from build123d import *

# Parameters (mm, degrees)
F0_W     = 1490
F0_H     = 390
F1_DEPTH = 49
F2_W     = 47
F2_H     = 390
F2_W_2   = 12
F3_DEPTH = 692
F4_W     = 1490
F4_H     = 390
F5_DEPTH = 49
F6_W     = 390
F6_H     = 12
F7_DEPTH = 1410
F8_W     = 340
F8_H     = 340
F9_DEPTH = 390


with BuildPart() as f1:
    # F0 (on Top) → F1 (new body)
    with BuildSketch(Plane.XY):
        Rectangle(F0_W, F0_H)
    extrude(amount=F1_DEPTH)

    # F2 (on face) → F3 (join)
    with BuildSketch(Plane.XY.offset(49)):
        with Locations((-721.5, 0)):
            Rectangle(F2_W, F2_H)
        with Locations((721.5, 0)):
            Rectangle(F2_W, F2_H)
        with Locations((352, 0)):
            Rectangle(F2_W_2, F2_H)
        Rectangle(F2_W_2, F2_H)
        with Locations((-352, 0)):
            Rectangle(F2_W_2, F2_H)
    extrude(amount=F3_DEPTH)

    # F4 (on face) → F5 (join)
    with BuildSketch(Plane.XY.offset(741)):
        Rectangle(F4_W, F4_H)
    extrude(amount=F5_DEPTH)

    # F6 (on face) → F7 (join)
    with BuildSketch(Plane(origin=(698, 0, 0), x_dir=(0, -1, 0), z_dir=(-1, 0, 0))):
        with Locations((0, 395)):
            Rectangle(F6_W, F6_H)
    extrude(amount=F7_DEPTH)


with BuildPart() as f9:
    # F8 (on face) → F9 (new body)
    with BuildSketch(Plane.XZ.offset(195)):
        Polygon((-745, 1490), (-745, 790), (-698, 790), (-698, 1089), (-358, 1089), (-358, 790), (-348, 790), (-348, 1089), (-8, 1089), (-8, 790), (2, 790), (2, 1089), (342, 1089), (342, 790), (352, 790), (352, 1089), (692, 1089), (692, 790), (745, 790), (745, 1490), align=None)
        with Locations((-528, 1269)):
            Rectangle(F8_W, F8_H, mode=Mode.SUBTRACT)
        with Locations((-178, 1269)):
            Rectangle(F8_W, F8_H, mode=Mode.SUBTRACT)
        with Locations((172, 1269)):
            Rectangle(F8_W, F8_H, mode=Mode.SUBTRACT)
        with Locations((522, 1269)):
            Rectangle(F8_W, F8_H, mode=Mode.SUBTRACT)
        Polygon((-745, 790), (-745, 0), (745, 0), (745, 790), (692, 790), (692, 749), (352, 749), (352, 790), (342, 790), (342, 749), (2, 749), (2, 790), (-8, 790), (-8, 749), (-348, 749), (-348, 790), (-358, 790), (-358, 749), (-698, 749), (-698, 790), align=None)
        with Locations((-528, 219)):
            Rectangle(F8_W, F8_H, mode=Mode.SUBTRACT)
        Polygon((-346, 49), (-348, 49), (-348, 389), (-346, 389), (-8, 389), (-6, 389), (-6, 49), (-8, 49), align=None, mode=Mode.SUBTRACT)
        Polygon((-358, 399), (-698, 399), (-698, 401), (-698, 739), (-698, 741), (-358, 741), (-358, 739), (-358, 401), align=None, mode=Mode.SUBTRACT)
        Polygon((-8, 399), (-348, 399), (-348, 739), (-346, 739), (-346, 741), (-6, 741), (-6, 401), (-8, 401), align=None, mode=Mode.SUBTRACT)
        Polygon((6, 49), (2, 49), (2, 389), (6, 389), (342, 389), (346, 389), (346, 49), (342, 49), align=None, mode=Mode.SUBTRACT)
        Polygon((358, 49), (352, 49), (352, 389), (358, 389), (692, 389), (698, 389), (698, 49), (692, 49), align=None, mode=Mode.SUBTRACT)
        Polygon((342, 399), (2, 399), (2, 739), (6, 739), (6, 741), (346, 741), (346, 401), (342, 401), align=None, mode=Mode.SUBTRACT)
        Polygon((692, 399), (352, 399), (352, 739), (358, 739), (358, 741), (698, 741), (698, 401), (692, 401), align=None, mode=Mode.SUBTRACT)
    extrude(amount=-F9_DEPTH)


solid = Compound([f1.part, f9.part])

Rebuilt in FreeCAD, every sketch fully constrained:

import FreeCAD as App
import Part
import Sketcher
from FreeCAD import Vector
Q = App.Units.Quantity

doc = App.newDocument("Part")
body = doc.addObject("PartDesign::Body", "Body")

# Sketch on XY plane
sketch1 = doc.addObject("Sketcher::SketchObject", "Sketch")
body.addObject(sketch1)
sketch1.AttachmentSupport = (doc.XY_Plane, [""])
sketch1.MapMode = "FlatFace"
sketch1.addGeometry(Part.LineSegment(Vector(-745, 195, 0), Vector(-745, -195, 0)), False)
sketch1.addGeometry(Part.LineSegment(Vector(-745, -195, 0), Vector(745, -195, 0)), False)
sketch1.addGeometry(Part.LineSegment(Vector(745, -195, 0), Vector(745, 195, 0)), False)
sketch1.addGeometry(Part.LineSegment(Vector(745, 195, 0), Vector(-745, 195, 0)), False)
sketch1.addConstraint(Sketcher.Constraint("Coincident", 0, 2, 1, 1))
sketch1.addConstraint(Sketcher.Constraint("Coincident", 1, 2, 2, 1))
sketch1.addConstraint(Sketcher.Constraint("Coincident", 2, 2, 3, 1))
sketch1.addConstraint(Sketcher.Constraint("Coincident", 3, 2, 0, 1))
sketch1.addConstraint(Sketcher.Constraint("Vertical", 0))
sketch1.addConstraint(Sketcher.Constraint("Horizontal", 1))
sketch1.addConstraint(Sketcher.Constraint("Vertical", 2))
sketch1.addConstraint(Sketcher.Constraint("Horizontal", 3))
sketch1.addConstraint(Sketcher.Constraint("Symmetric", 0, 2, 2, 2, -1, 1))
sketch1.addConstraint(Sketcher.Constraint("DistanceX", 1, 1, 1, 2, Q("1490 mm")))
sketch1.addConstraint(Sketcher.Constraint("DistanceY", 0, 2, 0, 1, Q("390 mm")))
pad1 = doc.addObject("PartDesign::Pad", "Pad")
body.addObject(pad1)
pad1.Profile = sketch1
pad1.Length = 49

# Sketch on XY plane
sketch2 = doc.addObject("Sketcher::SketchObject", "Sketch001")
body.addObject(sketch2)
sketch2.AttachmentSupport = (doc.XY_Plane, [""])
sketch2.MapMode = "FlatFace"
sketch2.AttachmentOffset = App.Placement(Vector(0, 0, 49), App.Rotation())
sketch2.addGeometry(Part.LineSegment(Vector(-745, 195, 0), Vector(-745, -195, 0)), False)
sketch2.addGeometry(Part.LineSegment(Vector(-745, -195, 0), Vector(-698, -195, 0)), False)
sketch2.addGeometry(Part.LineSegment(Vector(-698, -195, 0), Vector(-698, 195, 0)), False)
sketch2.addGeometry(Part.LineSegment(Vector(-698, 195, 0), Vector(-745, 195, 0)), False)
sketch2.addGeometry(Part.LineSegment(Vector(698, 195, 0), Vector(698, -195, 0)), False)
sketch2.addGeometry(Part.LineSegment(Vector(698, -195, 0), Vector(745, -195, 0)), False)
sketch2.addGeometry(Part.LineSegment(Vector(745, -195, 0), Vector(745, 195, 0)), False)
sketch2.addGeometry(Part.LineSegment(Vector(745, 195, 0), Vector(698, 195, 0)), False)
sketch2.addGeometry(Part.LineSegment(Vector(346, 195, 0), Vector(346, -195, 0)), False)
sketch2.addGeometry(Part.LineSegment(Vector(346, -195, 0), Vector(358, -195, 0)), False)
sketch2.addGeometry(Part.LineSegment(Vector(358, -195, 0), Vector(358, 195, 0)), False)
sketch2.addGeometry(Part.LineSegment(Vector(358, 195, 0), Vector(346, 195, 0)), False)
sketch2.addGeometry(Part.LineSegment(Vector(-6, 195, 0), Vector(-6, -195, 0)), False)
sketch2.addGeometry(Part.LineSegment(Vector(-6, -195, 0), Vector(6, -195, 0)), False)
sketch2.addGeometry(Part.LineSegment(Vector(6, -195, 0), Vector(6, 195, 0)), False)
sketch2.addGeometry(Part.LineSegment(Vector(6, 195, 0), Vector(-6, 195, 0)), False)
sketch2.addGeometry(Part.LineSegment(Vector(-358, 195, 0), Vector(-358, -195, 0)), False)
sketch2.addGeometry(Part.LineSegment(Vector(-358, -195, 0), Vector(-346, -195, 0)), False)
sketch2.addGeometry(Part.LineSegment(Vector(-346, -195, 0), Vector(-346, 195, 0)), False)
sketch2.addGeometry(Part.LineSegment(Vector(-346, 195, 0), Vector(-358, 195, 0)), False)
sketch2.addConstraint(Sketcher.Constraint("Coincident", 0, 2, 1, 1))
sketch2.addConstraint(Sketcher.Constraint("Coincident", 1, 2, 2, 1))
sketch2.addConstraint(Sketcher.Constraint("Coincident", 2, 2, 3, 1))
sketch2.addConstraint(Sketcher.Constraint("Coincident", 3, 2, 0, 1))
sketch2.addConstraint(Sketcher.Constraint("Coincident", 4, 2, 5, 1))
sketch2.addConstraint(Sketcher.Constraint("Coincident", 5, 2, 6, 1))
sketch2.addConstraint(Sketcher.Constraint("Coincident", 6, 2, 7, 1))
sketch2.addConstraint(Sketcher.Constraint("Coincident", 7, 2, 4, 1))
sketch2.addConstraint(Sketcher.Constraint("Coincident", 8, 2, 9, 1))
sketch2.addConstraint(Sketcher.Constraint("Coincident", 9, 2, 10, 1))
sketch2.addConstraint(Sketcher.Constraint("Coincident", 10, 2, 11, 1))
sketch2.addConstraint(Sketcher.Constraint("Coincident", 11, 2, 8, 1))
sketch2.addConstraint(Sketcher.Constraint("Coincident", 12, 2, 13, 1))
sketch2.addConstraint(Sketcher.Constraint("Coincident", 13, 2, 14, 1))
sketch2.addConstraint(Sketcher.Constraint("Coincident", 14, 2, 15, 1))
sketch2.addConstraint(Sketcher.Constraint("Coincident", 15, 2, 12, 1))
sketch2.addConstraint(Sketcher.Constraint("Coincident", 16, 2, 17, 1))
sketch2.addConstraint(Sketcher.Constraint("Coincident", 17, 2, 18, 1))
sketch2.addConstraint(Sketcher.Constraint("Coincident", 18, 2, 19, 1))
sketch2.addConstraint(Sketcher.Constraint("Coincident", 19, 2, 16, 1))
sketch2.addConstraint(Sketcher.Constraint("Vertical", 0))
sketch2.addConstraint(Sketcher.Constraint("Horizontal", 1))
sketch2.addConstraint(Sketcher.Constraint("Vertical", 2))
sketch2.addConstraint(Sketcher.Constraint("Horizontal", 3))
sketch2.addConstraint(Sketcher.Constraint("Vertical", 4))
sketch2.addConstraint(Sketcher.Constraint("Horizontal", 5))
sketch2.addConstraint(Sketcher.Constraint("Vertical", 6))
sketch2.addConstraint(Sketcher.Constraint("Horizontal", 7))
sketch2.addConstraint(Sketcher.Constraint("Vertical", 8))
sketch2.addConstraint(Sketcher.Constraint("Horizontal", 9))
sketch2.addConstraint(Sketcher.Constraint("Vertical", 10))
sketch2.addConstraint(Sketcher.Constraint("Horizontal", 11))
sketch2.addConstraint(Sketcher.Constraint("Vertical", 12))
sketch2.addConstraint(Sketcher.Constraint("Horizontal", 13))
sketch2.addConstraint(Sketcher.Constraint("Vertical", 14))
sketch2.addConstraint(Sketcher.Constraint("Horizontal", 15))
sketch2.addConstraint(Sketcher.Constraint("Vertical", 16))
sketch2.addConstraint(Sketcher.Constraint("Horizontal", 17))
sketch2.addConstraint(Sketcher.Constraint("Vertical", 18))
sketch2.addConstraint(Sketcher.Constraint("Horizontal", 19))
sketch2.addConstraint(Sketcher.Constraint("Symmetric", 2, 2, 4, 2, -1, 1))
sketch2.addConstraint(Sketcher.Constraint("Symmetric", 0, 2, 6, 2, -1, 1))
sketch2.addConstraint(Sketcher.Constraint("Symmetric", 12, 2, 14, 2, -1, 1))
sketch2.addConstraint(Sketcher.Constraint("Symmetric", 10, 2, 16, 2, -1, 1))
sketch2.addConstraint(Sketcher.Constraint("Symmetric", 8, 2, 18, 2, -1, 1))
sketch2.addConstraint(Sketcher.Constraint("Horizontal", 1, 2, 4, 2))
sketch2.addConstraint(Sketcher.Constraint("Horizontal", 5, 2, 8, 2))
sketch2.addConstraint(Sketcher.Constraint("Horizontal", 7, 2, 10, 2))
sketch2.addConstraint(Sketcher.Constraint("Horizontal", 9, 2, 12, 2))
sketch2.addConstraint(Sketcher.Constraint("Equal", 11, 13))
sketch2.addConstraint(Sketcher.Constraint("DistanceX", 1, 1, 1, 2, Q("47 mm")))
sketch2.addConstraint(Sketcher.Constraint("DistanceX", 9, 1, 9, 2, Q("12 mm")))
sketch2.addConstraint(Sketcher.Constraint("DistanceY", 0, 2, 0, 1, Q("390 mm")))
sketch2.addConstraint(Sketcher.Constraint("DistanceX", 0, 2, -1, 1, Q("745 mm")))
sketch2.addConstraint(Sketcher.Constraint("DistanceX", -1, 1, 8, 2, Q("346 mm")))
pad2 = doc.addObject("PartDesign::Pad", "Pad001")
body.addObject(pad2)
pad2.Profile = sketch2
pad2.Length = 692

# Sketch on XY plane
sketch3 = doc.addObject("Sketcher::SketchObject", "Sketch002")
body.addObject(sketch3)
sketch3.AttachmentSupport = (doc.XY_Plane, [""])
sketch3.MapMode = "FlatFace"
sketch3.AttachmentOffset = App.Placement(Vector(0, 0, 741), App.Rotation())
sketch3.addGeometry(Part.LineSegment(Vector(-745, 195, 0), Vector(-745, -195, 0)), False)
sketch3.addGeometry(Part.LineSegment(Vector(-745, -195, 0), Vector(745, -195, 0)), False)
sketch3.addGeometry(Part.LineSegment(Vector(745, -195, 0), Vector(745, 195, 0)), False)
sketch3.addGeometry(Part.LineSegment(Vector(745, 195, 0), Vector(-745, 195, 0)), False)
sketch3.addConstraint(Sketcher.Constraint("Coincident", 0, 2, 1, 1))
sketch3.addConstraint(Sketcher.Constraint("Coincident", 1, 2, 2, 1))
sketch3.addConstraint(Sketcher.Constraint("Coincident", 2, 2, 3, 1))
sketch3.addConstraint(Sketcher.Constraint("Coincident", 3, 2, 0, 1))
sketch3.addConstraint(Sketcher.Constraint("Vertical", 0))
sketch3.addConstraint(Sketcher.Constraint("Horizontal", 1))
sketch3.addConstraint(Sketcher.Constraint("Vertical", 2))
sketch3.addConstraint(Sketcher.Constraint("Horizontal", 3))
sketch3.addConstraint(Sketcher.Constraint("Symmetric", 0, 2, 2, 2, -1, 1))
sketch3.addConstraint(Sketcher.Constraint("DistanceX", 1, 1, 1, 2, Q("1490 mm")))
sketch3.addConstraint(Sketcher.Constraint("DistanceY", 0, 2, 0, 1, Q("390 mm")))
pad3 = doc.addObject("PartDesign::Pad", "Pad002")
body.addObject(pad3)
pad3.Profile = sketch3
pad3.Length = 49

# Sketch on YZ plane
sketch4 = doc.addObject("Sketcher::SketchObject", "Sketch003")
body.addObject(sketch4)
sketch4.AttachmentSupport = (doc.YZ_Plane, [""])
sketch4.MapMode = "FlatFace"
sketch4.AttachmentOffset = App.Placement(Vector(0, 0, 698), App.Rotation())
sketch4.addGeometry(Part.LineSegment(Vector(195, 401, 0), Vector(195, 389, 0)), False)
sketch4.addGeometry(Part.LineSegment(Vector(195, 389, 0), Vector(-195, 389, 0)), False)
sketch4.addGeometry(Part.LineSegment(Vector(-195, 389, 0), Vector(-195, 401, 0)), False)
sketch4.addGeometry(Part.LineSegment(Vector(-195, 401, 0), Vector(195, 401, 0)), False)
sketch4.addConstraint(Sketcher.Constraint("Coincident", 0, 2, 1, 1))
sketch4.addConstraint(Sketcher.Constraint("Coincident", 1, 2, 2, 1))
sketch4.addConstraint(Sketcher.Constraint("Coincident", 2, 2, 3, 1))
sketch4.addConstraint(Sketcher.Constraint("Coincident", 3, 2, 0, 1))
sketch4.addConstraint(Sketcher.Constraint("Vertical", 0))
sketch4.addConstraint(Sketcher.Constraint("Horizontal", 1))
sketch4.addConstraint(Sketcher.Constraint("Vertical", 2))
sketch4.addConstraint(Sketcher.Constraint("Horizontal", 3))
sketch4.addConstraint(Sketcher.Constraint("DistanceX", 1, 2, 1, 1, Q("390 mm")))
sketch4.addConstraint(Sketcher.Constraint("DistanceY", 0, 2, 0, 1, Q("12 mm")))
sketch4.addConstraint(Sketcher.Constraint("DistanceX", -1, 1, 0, 2, Q("195 mm")))
sketch4.addConstraint(Sketcher.Constraint("DistanceY", -1, 1, 0, 2, Q("389 mm")))
pad4 = doc.addObject("PartDesign::Pad", "Pad003")
body.addObject(pad4)
pad4.Profile = sketch4
pad4.Length = 1410
pad4.Reversed = True
body2 = doc.addObject("PartDesign::Body", "Body001")

# Sketch on XZ plane
sketch5 = doc.addObject("Sketcher::SketchObject", "Sketch004")
body2.addObject(sketch5)
sketch5.AttachmentSupport = (doc.getObject("XZ_Plane001"), [""])
sketch5.MapMode = "FlatFace"
sketch5.AttachmentOffset = App.Placement(Vector(0, 0, 195), App.Rotation())
sketch5.addGeometry(Part.LineSegment(Vector(-745, 1490, 0), Vector(-745, 0, 0)), False)
sketch5.addGeometry(Part.LineSegment(Vector(-745, 0, 0), Vector(745, 0, 0)), False)
sketch5.addGeometry(Part.LineSegment(Vector(745, 0, 0), Vector(745, 1490, 0)), False)
sketch5.addGeometry(Part.LineSegment(Vector(745, 1490, 0), Vector(-745, 1490, 0)), False)
sketch5.addGeometry(Part.LineSegment(Vector(-358, 49, 0), Vector(-698, 49, 0)), False)
sketch5.addGeometry(Part.LineSegment(Vector(-698, 49, 0), Vector(-698, 389, 0)), False)
sketch5.addGeometry(Part.LineSegment(Vector(-698, 389, 0), Vector(-358, 389, 0)), False)
sketch5.addGeometry(Part.LineSegment(Vector(-358, 389, 0), Vector(-358, 49, 0)), False)
sketch5.addGeometry(Part.LineSegment(Vector(-6, 49, 0), Vector(-348, 49, 0)), False)
sketch5.addGeometry(Part.LineSegment(Vector(-348, 49, 0), Vector(-348, 389, 0)), False)
sketch5.addGeometry(Part.LineSegment(Vector(-348, 389, 0), Vector(-6, 389, 0)), False)
sketch5.addGeometry(Part.LineSegment(Vector(-6, 389, 0), Vector(-6, 49, 0)), False)
sketch5.addGeometry(Part.LineSegment(Vector(-358, 741, 0), Vector(-358, 399, 0)), False)
sketch5.addGeometry(Part.LineSegment(Vector(-358, 399, 0), Vector(-698, 399, 0)), False)
sketch5.addGeometry(Part.LineSegment(Vector(-698, 399, 0), Vector(-698, 741, 0)), False)
sketch5.addGeometry(Part.LineSegment(Vector(-698, 741, 0), Vector(-358, 741, 0)), False)
sketch5.addGeometry(Part.LineSegment(Vector(-8, 401, 0), Vector(-8, 399, 0)), False)
sketch5.addGeometry(Part.LineSegment(Vector(-8, 399, 0), Vector(-348, 399, 0)), False)
sketch5.addGeometry(Part.LineSegment(Vector(-348, 399, 0), Vector(-348, 739, 0)), False)
sketch5.addGeometry(Part.LineSegment(Vector(-348, 739, 0), Vector(-346, 739, 0)), False)
sketch5.addGeometry(Part.LineSegment(Vector(-346, 739, 0), Vector(-346, 741, 0)), False)
sketch5.addGeometry(Part.LineSegment(Vector(-346, 741, 0), Vector(-6, 741, 0)), False)
sketch5.addGeometry(Part.LineSegment(Vector(-6, 741, 0), Vector(-6, 401, 0)), False)
sketch5.addGeometry(Part.LineSegment(Vector(-6, 401, 0), Vector(-8, 401, 0)), False)
sketch5.addGeometry(Part.LineSegment(Vector(346, 49, 0), Vector(2, 49, 0)), False)
sketch5.addGeometry(Part.LineSegment(Vector(2, 49, 0), Vector(2, 389, 0)), False)
sketch5.addGeometry(Part.LineSegment(Vector(2, 389, 0), Vector(346, 389, 0)), False)
sketch5.addGeometry(Part.LineSegment(Vector(346, 389, 0), Vector(346, 49, 0)), False)
sketch5.addGeometry(Part.LineSegment(Vector(698, 49, 0), Vector(352, 49, 0)), False)
sketch5.addGeometry(Part.LineSegment(Vector(352, 49, 0), Vector(352, 389, 0)), False)
sketch5.addGeometry(Part.LineSegment(Vector(352, 389, 0), Vector(698, 389, 0)), False)
sketch5.addGeometry(Part.LineSegment(Vector(698, 389, 0), Vector(698, 49, 0)), False)
sketch5.addGeometry(Part.LineSegment(Vector(342, 401, 0), Vector(342, 399, 0)), False)
sketch5.addGeometry(Part.LineSegment(Vector(342, 399, 0), Vector(2, 399, 0)), False)
sketch5.addGeometry(Part.LineSegment(Vector(2, 399, 0), Vector(2, 739, 0)), False)
sketch5.addGeometry(Part.LineSegment(Vector(2, 739, 0), Vector(6, 739, 0)), False)
sketch5.addGeometry(Part.LineSegment(Vector(6, 739, 0), Vector(6, 741, 0)), False)
sketch5.addGeometry(Part.LineSegment(Vector(6, 741, 0), Vector(346, 741, 0)), False)
sketch5.addGeometry(Part.LineSegment(Vector(346, 741, 0), Vector(346, 401, 0)), False)
sketch5.addGeometry(Part.LineSegment(Vector(346, 401, 0), Vector(342, 401, 0)), False)
sketch5.addGeometry(Part.LineSegment(Vector(692, 401, 0), Vector(692, 399, 0)), False)
sketch5.addGeometry(Part.LineSegment(Vector(692, 399, 0), Vector(352, 399, 0)), False)
sketch5.addGeometry(Part.LineSegment(Vector(352, 399, 0), Vector(352, 739, 0)), False)
sketch5.addGeometry(Part.LineSegment(Vector(352, 739, 0), Vector(358, 739, 0)), False)
sketch5.addGeometry(Part.LineSegment(Vector(358, 739, 0), Vector(358, 741, 0)), False)
sketch5.addGeometry(Part.LineSegment(Vector(358, 741, 0), Vector(698, 741, 0)), False)
sketch5.addGeometry(Part.LineSegment(Vector(698, 741, 0), Vector(698, 401, 0)), False)
sketch5.addGeometry(Part.LineSegment(Vector(698, 401, 0), Vector(692, 401, 0)), False)
sketch5.addGeometry(Part.LineSegment(Vector(-698, 1089, 0), Vector(-358, 1089, 0)), False)
sketch5.addGeometry(Part.LineSegment(Vector(-358, 1089, 0), Vector(-358, 749, 0)), False)
sketch5.addGeometry(Part.LineSegment(Vector(-358, 749, 0), Vector(-698, 749, 0)), False)
sketch5.addGeometry(Part.LineSegment(Vector(-698, 749, 0), Vector(-698, 1089, 0)), False)
sketch5.addGeometry(Part.LineSegment(Vector(-348, 1089, 0), Vector(-8, 1089, 0)), False)
sketch5.addGeometry(Part.LineSegment(Vector(-8, 1089, 0), Vector(-8, 749, 0)), False)
sketch5.addGeometry(Part.LineSegment(Vector(-8, 749, 0), Vector(-348, 749, 0)), False)
sketch5.addGeometry(Part.LineSegment(Vector(-348, 749, 0), Vector(-348, 1089, 0)), False)
sketch5.addGeometry(Part.LineSegment(Vector(-358, 1099, 0), Vector(-698, 1099, 0)), False)
sketch5.addGeometry(Part.LineSegment(Vector(-698, 1099, 0), Vector(-698, 1439, 0)), False)
sketch5.addGeometry(Part.LineSegment(Vector(-698, 1439, 0), Vector(-358, 1439, 0)), False)
sketch5.addGeometry(Part.LineSegment(Vector(-358, 1439, 0), Vector(-358, 1099, 0)), False)
sketch5.addGeometry(Part.LineSegment(Vector(-8, 1099, 0), Vector(-348, 1099, 0)), False)
sketch5.addGeometry(Part.LineSegment(Vector(-348, 1099, 0), Vector(-348, 1439, 0)), False)
sketch5.addGeometry(Part.LineSegment(Vector(-348, 1439, 0), Vector(-8, 1439, 0)), False)
sketch5.addGeometry(Part.LineSegment(Vector(-8, 1439, 0), Vector(-8, 1099, 0)), False)
sketch5.addGeometry(Part.LineSegment(Vector(342, 1089, 0), Vector(342, 749, 0)), False)
sketch5.addGeometry(Part.LineSegment(Vector(342, 749, 0), Vector(2, 749, 0)), False)
sketch5.addGeometry(Part.LineSegment(Vector(2, 749, 0), Vector(2, 1089, 0)), False)
sketch5.addGeometry(Part.LineSegment(Vector(2, 1089, 0), Vector(342, 1089, 0)), False)
sketch5.addGeometry(Part.LineSegment(Vector(692, 1089, 0), Vector(692, 749, 0)), False)
sketch5.addGeometry(Part.LineSegment(Vector(692, 749, 0), Vector(352, 749, 0)), False)
sketch5.addGeometry(Part.LineSegment(Vector(352, 749, 0), Vector(352, 1089, 0)), False)
sketch5.addGeometry(Part.LineSegment(Vector(352, 1089, 0), Vector(692, 1089, 0)), False)
sketch5.addGeometry(Part.LineSegment(Vector(342, 1099, 0), Vector(2, 1099, 0)), False)
sketch5.addGeometry(Part.LineSegment(Vector(2, 1099, 0), Vector(2, 1439, 0)), False)
sketch5.addGeometry(Part.LineSegment(Vector(2, 1439, 0), Vector(342, 1439, 0)), False)
sketch5.addGeometry(Part.LineSegment(Vector(342, 1439, 0), Vector(342, 1099, 0)), False)
sketch5.addGeometry(Part.LineSegment(Vector(692, 1099, 0), Vector(352, 1099, 0)), False)
sketch5.addGeometry(Part.LineSegment(Vector(352, 1099, 0), Vector(352, 1439, 0)), False)
sketch5.addGeometry(Part.LineSegment(Vector(352, 1439, 0), Vector(692, 1439, 0)), False)
sketch5.addGeometry(Part.LineSegment(Vector(692, 1439, 0), Vector(692, 1099, 0)), False)
sketch5.addConstraint(Sketcher.Constraint("Coincident", 0, 2, 1, 1))
sketch5.addConstraint(Sketcher.Constraint("Coincident", 1, 2, 2, 1))
sketch5.addConstraint(Sketcher.Constraint("Coincident", 2, 2, 3, 1))
sketch5.addConstraint(Sketcher.Constraint("Coincident", 3, 2, 0, 1))
sketch5.addConstraint(Sketcher.Constraint("Coincident", 4, 2, 5, 1))
sketch5.addConstraint(Sketcher.Constraint("Coincident", 5, 2, 6, 1))
sketch5.addConstraint(Sketcher.Constraint("Coincident", 6, 2, 7, 1))
sketch5.addConstraint(Sketcher.Constraint("Coincident", 7, 2, 4, 1))
sketch5.addConstraint(Sketcher.Constraint("Coincident", 8, 2, 9, 1))
sketch5.addConstraint(Sketcher.Constraint("Coincident", 9, 2, 10, 1))
sketch5.addConstraint(Sketcher.Constraint("Coincident", 10, 2, 11, 1))
sketch5.addConstraint(Sketcher.Constraint("Coincident", 11, 2, 8, 1))
sketch5.addConstraint(Sketcher.Constraint("Coincident", 12, 2, 13, 1))
sketch5.addConstraint(Sketcher.Constraint("Coincident", 13, 2, 14, 1))
sketch5.addConstraint(Sketcher.Constraint("Coincident", 14, 2, 15, 1))
sketch5.addConstraint(Sketcher.Constraint("Coincident", 15, 2, 12, 1))
sketch5.addConstraint(Sketcher.Constraint("Coincident", 16, 2, 17, 1))
sketch5.addConstraint(Sketcher.Constraint("Coincident", 17, 2, 18, 1))
sketch5.addConstraint(Sketcher.Constraint("Coincident", 18, 2, 19, 1))
sketch5.addConstraint(Sketcher.Constraint("Coincident", 19, 2, 20, 1))
sketch5.addConstraint(Sketcher.Constraint("Coincident", 20, 2, 21, 1))
sketch5.addConstraint(Sketcher.Constraint("Coincident", 21, 2, 22, 1))
sketch5.addConstraint(Sketcher.Constraint("Coincident", 22, 2, 23, 1))
sketch5.addConstraint(Sketcher.Constraint("Coincident", 23, 2, 16, 1))
sketch5.addConstraint(Sketcher.Constraint("Coincident", 24, 2, 25, 1))
sketch5.addConstraint(Sketcher.Constraint("Coincident", 25, 2, 26, 1))
sketch5.addConstraint(Sketcher.Constraint("Coincident", 26, 2, 27, 1))
sketch5.addConstraint(Sketcher.Constraint("Coincident", 27, 2, 24, 1))
sketch5.addConstraint(Sketcher.Constraint("Coincident", 28, 2, 29, 1))
sketch5.addConstraint(Sketcher.Constraint("Coincident", 29, 2, 30, 1))
sketch5.addConstraint(Sketcher.Constraint("Coincident", 30, 2, 31, 1))
sketch5.addConstraint(Sketcher.Constraint("Coincident", 31, 2, 28, 1))
sketch5.addConstraint(Sketcher.Constraint("Coincident", 32, 2, 33, 1))
sketch5.addConstraint(Sketcher.Constraint("Coincident", 33, 2, 34, 1))
sketch5.addConstraint(Sketcher.Constraint("Coincident", 34, 2, 35, 1))
sketch5.addConstraint(Sketcher.Constraint("Coincident", 35, 2, 36, 1))
sketch5.addConstraint(Sketcher.Constraint("Coincident", 36, 2, 37, 1))
sketch5.addConstraint(Sketcher.Constraint("Coincident", 37, 2, 38, 1))
sketch5.addConstraint(Sketcher.Constraint("Coincident", 38, 2, 39, 1))
sketch5.addConstraint(Sketcher.Constraint("Coincident", 39, 2, 32, 1))
sketch5.addConstraint(Sketcher.Constraint("Coincident", 40, 2, 41, 1))
sketch5.addConstraint(Sketcher.Constraint("Coincident", 41, 2, 42, 1))
sketch5.addConstraint(Sketcher.Constraint("Coincident", 42, 2, 43, 1))
sketch5.addConstraint(Sketcher.Constraint("Coincident", 43, 2, 44, 1))
sketch5.addConstraint(Sketcher.Constraint("Coincident", 44, 2, 45, 1))
sketch5.addConstraint(Sketcher.Constraint("Coincident", 45, 2, 46, 1))
sketch5.addConstraint(Sketcher.Constraint("Coincident", 46, 2, 47, 1))
sketch5.addConstraint(Sketcher.Constraint("Coincident", 47, 2, 40, 1))
sketch5.addConstraint(Sketcher.Constraint("Coincident", 48, 2, 49, 1))
sketch5.addConstraint(Sketcher.Constraint("Coincident", 49, 2, 50, 1))
sketch5.addConstraint(Sketcher.Constraint("Coincident", 50, 2, 51, 1))
sketch5.addConstraint(Sketcher.Constraint("Coincident", 51, 2, 48, 1))
sketch5.addConstraint(Sketcher.Constraint("Coincident", 52, 2, 53, 1))
sketch5.addConstraint(Sketcher.Constraint("Coincident", 53, 2, 54, 1))
sketch5.addConstraint(Sketcher.Constraint("Coincident", 54, 2, 55, 1))
sketch5.addConstraint(Sketcher.Constraint("Coincident", 55, 2, 52, 1))
sketch5.addConstraint(Sketcher.Constraint("Coincident", 56, 2, 57, 1))
sketch5.addConstraint(Sketcher.Constraint("Coincident", 57, 2, 58, 1))
sketch5.addConstraint(Sketcher.Constraint("Coincident", 58, 2, 59, 1))
sketch5.addConstraint(Sketcher.Constraint("Coincident", 59, 2, 56, 1))
sketch5.addConstraint(Sketcher.Constraint("Coincident", 60, 2, 61, 1))
sketch5.addConstraint(Sketcher.Constraint("Coincident", 61, 2, 62, 1))
sketch5.addConstraint(Sketcher.Constraint("Coincident", 62, 2, 63, 1))
sketch5.addConstraint(Sketcher.Constraint("Coincident", 63, 2, 60, 1))
sketch5.addConstraint(Sketcher.Constraint("Coincident", 64, 2, 65, 1))
sketch5.addConstraint(Sketcher.Constraint("Coincident", 65, 2, 66, 1))
sketch5.addConstraint(Sketcher.Constraint("Coincident", 66, 2, 67, 1))
sketch5.addConstraint(Sketcher.Constraint("Coincident", 67, 2, 64, 1))
sketch5.addConstraint(Sketcher.Constraint("Coincident", 68, 2, 69, 1))
sketch5.addConstraint(Sketcher.Constraint("Coincident", 69, 2, 70, 1))
sketch5.addConstraint(Sketcher.Constraint("Coincident", 70, 2, 71, 1))
sketch5.addConstraint(Sketcher.Constraint("Coincident", 71, 2, 68, 1))
sketch5.addConstraint(Sketcher.Constraint("Coincident", 72, 2, 73, 1))
sketch5.addConstraint(Sketcher.Constraint("Coincident", 73, 2, 74, 1))
sketch5.addConstraint(Sketcher.Constraint("Coincident", 74, 2, 75, 1))
sketch5.addConstraint(Sketcher.Constraint("Coincident", 75, 2, 72, 1))
sketch5.addConstraint(Sketcher.Constraint("Coincident", 76, 2, 77, 1))
sketch5.addConstraint(Sketcher.Constraint("Coincident", 77, 2, 78, 1))
sketch5.addConstraint(Sketcher.Constraint("Coincident", 78, 2, 79, 1))
sketch5.addConstraint(Sketcher.Constraint("Coincident", 79, 2, 76, 1))
sketch5.addConstraint(Sketcher.Constraint("Vertical", 0))
sketch5.addConstraint(Sketcher.Constraint("Horizontal", 1))
sketch5.addConstraint(Sketcher.Constraint("Vertical", 2))
sketch5.addConstraint(Sketcher.Constraint("Horizontal", 3))
sketch5.addConstraint(Sketcher.Constraint("Horizontal", 4))
sketch5.addConstraint(Sketcher.Constraint("Vertical", 5))
sketch5.addConstraint(Sketcher.Constraint("Horizontal", 6))
sketch5.addConstraint(Sketcher.Constraint("Vertical", 7))
sketch5.addConstraint(Sketcher.Constraint("Horizontal", 8))
sketch5.addConstraint(Sketcher.Constraint("Vertical", 9))
sketch5.addConstraint(Sketcher.Constraint("Horizontal", 10))
sketch5.addConstraint(Sketcher.Constraint("Vertical", 11))
sketch5.addConstraint(Sketcher.Constraint("Vertical", 12))
sketch5.addConstraint(Sketcher.Constraint("Horizontal", 13))
sketch5.addConstraint(Sketcher.Constraint("Vertical", 14))
sketch5.addConstraint(Sketcher.Constraint("Horizontal", 15))
sketch5.addConstraint(Sketcher.Constraint("Vertical", 16))
sketch5.addConstraint(Sketcher.Constraint("Horizontal", 17))
sketch5.addConstraint(Sketcher.Constraint("Vertical", 18))
sketch5.addConstraint(Sketcher.Constraint("Horizontal", 19))
sketch5.addConstraint(Sketcher.Constraint("Vertical", 20))
sketch5.addConstraint(Sketcher.Constraint("Horizontal", 21))
sketch5.addConstraint(Sketcher.Constraint("Vertical", 22))
sketch5.addConstraint(Sketcher.Constraint("Horizontal", 23))
sketch5.addConstraint(Sketcher.Constraint("Horizontal", 24))
sketch5.addConstraint(Sketcher.Constraint("Vertical", 25))
sketch5.addConstraint(Sketcher.Constraint("Horizontal", 26))
sketch5.addConstraint(Sketcher.Constraint("Vertical", 27))
sketch5.addConstraint(Sketcher.Constraint("Horizontal", 28))
sketch5.addConstraint(Sketcher.Constraint("Vertical", 29))
sketch5.addConstraint(Sketcher.Constraint("Horizontal", 30))
sketch5.addConstraint(Sketcher.Constraint("Vertical", 31))
sketch5.addConstraint(Sketcher.Constraint("Vertical", 32))
sketch5.addConstraint(Sketcher.Constraint("Horizontal", 33))
sketch5.addConstraint(Sketcher.Constraint("Vertical", 34))
sketch5.addConstraint(Sketcher.Constraint("Horizontal", 35))
sketch5.addConstraint(Sketcher.Constraint("Vertical", 36))
sketch5.addConstraint(Sketcher.Constraint("Horizontal", 37))
sketch5.addConstraint(Sketcher.Constraint("Vertical", 38))
sketch5.addConstraint(Sketcher.Constraint("Horizontal", 39))
sketch5.addConstraint(Sketcher.Constraint("Vertical", 40))
sketch5.addConstraint(Sketcher.Constraint("Horizontal", 41))
sketch5.addConstraint(Sketcher.Constraint("Vertical", 42))
sketch5.addConstraint(Sketcher.Constraint("Horizontal", 43))
sketch5.addConstraint(Sketcher.Constraint("Vertical", 44))
sketch5.addConstraint(Sketcher.Constraint("Horizontal", 45))
sketch5.addConstraint(Sketcher.Constraint("Vertical", 46))
sketch5.addConstraint(Sketcher.Constraint("Horizontal", 47))
sketch5.addConstraint(Sketcher.Constraint("Horizontal", 48))
sketch5.addConstraint(Sketcher.Constraint("Vertical", 49))
sketch5.addConstraint(Sketcher.Constraint("Horizontal", 50))
sketch5.addConstraint(Sketcher.Constraint("Vertical", 51))
sketch5.addConstraint(Sketcher.Constraint("Horizontal", 52))
sketch5.addConstraint(Sketcher.Constraint("Vertical", 53))
sketch5.addConstraint(Sketcher.Constraint("Horizontal", 54))
sketch5.addConstraint(Sketcher.Constraint("Vertical", 55))
sketch5.addConstraint(Sketcher.Constraint("Horizontal", 56))
sketch5.addConstraint(Sketcher.Constraint("Vertical", 57))
sketch5.addConstraint(Sketcher.Constraint("Horizontal", 58))
sketch5.addConstraint(Sketcher.Constraint("Vertical", 59))
sketch5.addConstraint(Sketcher.Constraint("Horizontal", 60))
sketch5.addConstraint(Sketcher.Constraint("Vertical", 61))
sketch5.addConstraint(Sketcher.Constraint("Horizontal", 62))
sketch5.addConstraint(Sketcher.Constraint("Vertical", 63))
sketch5.addConstraint(Sketcher.Constraint("Vertical", 64))
sketch5.addConstraint(Sketcher.Constraint("Horizontal", 65))
sketch5.addConstraint(Sketcher.Constraint("Vertical", 66))
sketch5.addConstraint(Sketcher.Constraint("Horizontal", 67))
sketch5.addConstraint(Sketcher.Constraint("Vertical", 68))
sketch5.addConstraint(Sketcher.Constraint("Horizontal", 69))
sketch5.addConstraint(Sketcher.Constraint("Vertical", 70))
sketch5.addConstraint(Sketcher.Constraint("Horizontal", 71))
sketch5.addConstraint(Sketcher.Constraint("Horizontal", 72))
sketch5.addConstraint(Sketcher.Constraint("Vertical", 73))
sketch5.addConstraint(Sketcher.Constraint("Horizontal", 74))
sketch5.addConstraint(Sketcher.Constraint("Vertical", 75))
sketch5.addConstraint(Sketcher.Constraint("Horizontal", 76))
sketch5.addConstraint(Sketcher.Constraint("Vertical", 77))
sketch5.addConstraint(Sketcher.Constraint("Horizontal", 78))
sketch5.addConstraint(Sketcher.Constraint("Vertical", 79))
sketch5.addConstraint(Sketcher.Constraint("Symmetric", 0, 2, 1, 2, -1, 1))
sketch5.addConstraint(Sketcher.Constraint("Symmetric", 5, 2, 30, 2, -2))
sketch5.addConstraint(Sketcher.Constraint("Symmetric", 21, 2, 36, 2, -2))
sketch5.addConstraint(Sketcher.Constraint("Symmetric", 15, 2, 44, 2, -2))
sketch5.addConstraint(Sketcher.Constraint("Horizontal", 7, 2, 8, 2))
sketch5.addConstraint(Sketcher.Constraint("Horizontal", 6, 2, 9, 2))
sketch5.addConstraint(Sketcher.Constraint("Horizontal", 13, 2, 16, 2))
sketch5.addConstraint(Sketcher.Constraint("Horizontal", 15, 2, 20, 2))
sketch5.addConstraint(Sketcher.Constraint("Horizontal", 11, 2, 24, 2))
sketch5.addConstraint(Sketcher.Constraint("Horizontal", 10, 2, 25, 2))
sketch5.addConstraint(Sketcher.Constraint("Horizontal", 27, 2, 28, 2))
sketch5.addConstraint(Sketcher.Constraint("Horizontal", 17, 2, 32, 2))
sketch5.addConstraint(Sketcher.Constraint("Horizontal", 19, 2, 34, 2))
sketch5.addConstraint(Sketcher.Constraint("Horizontal", 23, 2, 38, 2))
sketch5.addConstraint(Sketcher.Constraint("Horizontal", 33, 2, 40, 2))
sketch5.addConstraint(Sketcher.Constraint("Horizontal", 35, 2, 42, 2))
sketch5.addConstraint(Sketcher.Constraint("Horizontal", 39, 2, 46, 2))
sketch5.addConstraint(Sketcher.Constraint("Horizontal", 51, 2, 52, 2))
sketch5.addConstraint(Sketcher.Constraint("Horizontal", 50, 2, 53, 2))
sketch5.addConstraint(Sketcher.Constraint("Horizontal", 59, 2, 60, 2))
sketch5.addConstraint(Sketcher.Constraint("Horizontal", 58, 2, 61, 2))
sketch5.addConstraint(Sketcher.Constraint("Horizontal", 54, 2, 64, 2))
sketch5.addConstraint(Sketcher.Constraint("Horizontal", 55, 2, 66, 2))
sketch5.addConstraint(Sketcher.Constraint("Horizontal", 65, 2, 68, 2))
sketch5.addConstraint(Sketcher.Constraint("Horizontal", 67, 2, 70, 2))
sketch5.addConstraint(Sketcher.Constraint("Horizontal", 63, 2, 72, 2))
sketch5.addConstraint(Sketcher.Constraint("Horizontal", 62, 2, 73, 2))
sketch5.addConstraint(Sketcher.Constraint("Horizontal", 75, 2, 76, 2))
sketch5.addConstraint(Sketcher.Constraint("Horizontal", 74, 2, 77, 2))
sketch5.addConstraint(Sketcher.Constraint("Vertical", 7, 2, 12, 2))
sketch5.addConstraint(Sketcher.Constraint("Vertical", 5, 2, 13, 2))
sketch5.addConstraint(Sketcher.Constraint("Vertical", 9, 2, 17, 2))
sketch5.addConstraint(Sketcher.Constraint("Vertical", 11, 2, 21, 2))
sketch5.addConstraint(Sketcher.Constraint("Vertical", 25, 2, 33, 2))
sketch5.addConstraint(Sketcher.Constraint("Vertical", 27, 2, 37, 2))
sketch5.addConstraint(Sketcher.Constraint("Vertical", 29, 2, 41, 2))
sketch5.addConstraint(Sketcher.Constraint("Vertical", 31, 2, 45, 2))
sketch5.addConstraint(Sketcher.Constraint("Vertical", 15, 2, 48, 2))
sketch5.addConstraint(Sketcher.Constraint("Vertical", 14, 2, 50, 2))
sketch5.addConstraint(Sketcher.Constraint("Vertical", 23, 2, 52, 2))
sketch5.addConstraint(Sketcher.Constraint("Vertical", 18, 2, 54, 2))
sketch5.addConstraint(Sketcher.Constraint("Vertical", 51, 2, 56, 2))
sketch5.addConstraint(Sketcher.Constraint("Vertical", 49, 2, 58, 2))
sketch5.addConstraint(Sketcher.Constraint("Vertical", 55, 2, 60, 2))
sketch5.addConstraint(Sketcher.Constraint("Vertical", 53, 2, 62, 2))
sketch5.addConstraint(Sketcher.Constraint("Vertical", 39, 2, 64, 2))
sketch5.addConstraint(Sketcher.Constraint("Vertical", 34, 2, 65, 2))
sketch5.addConstraint(Sketcher.Constraint("Vertical", 47, 2, 68, 2))
sketch5.addConstraint(Sketcher.Constraint("Vertical", 42, 2, 69, 2))
sketch5.addConstraint(Sketcher.Constraint("Vertical", 66, 2, 72, 2))
sketch5.addConstraint(Sketcher.Constraint("Vertical", 67, 2, 74, 2))
sketch5.addConstraint(Sketcher.Constraint("Vertical", 70, 2, 76, 2))
sketch5.addConstraint(Sketcher.Constraint("Vertical", 71, 2, 78, 2))
sketch5.addConstraint(Sketcher.Constraint("Equal", 15, 17))
sketch5.addConstraint(Sketcher.Constraint("Equal", 17, 21))
sketch5.addConstraint(Sketcher.Constraint("Equal", 21, 33))
sketch5.addConstraint(Sketcher.Constraint("Equal", 33, 37))
sketch5.addConstraint(Sketcher.Constraint("Equal", 37, 41))
sketch5.addConstraint(Sketcher.Constraint("Equal", 3, 0))
sketch5.addConstraint(Sketcher.Constraint("Equal", 78, 5))
sketch5.addConstraint(Sketcher.Constraint("Equal", 10, 12))
sketch5.addConstraint(Sketcher.Constraint("Equal", 23, 16))
sketch5.addConstraint(Sketcher.Constraint("Equal", 11, 18))
sketch5.addConstraint(Sketcher.Constraint("Equal", 46, 49))
sketch5.addConstraint(Sketcher.Constraint("Equal", 55, 57))
sketch5.addConstraint(Sketcher.Constraint("DistanceX", 1, 1, 1, 2, Q("1490 mm")))
sketch5.addConstraint(Sketcher.Constraint("DistanceX", 4, 2, 4, 1, Q("340 mm")))
sketch5.addConstraint(Sketcher.Constraint("DistanceX", 8, 2, 8, 1, Q("342 mm")))
sketch5.addConstraint(Sketcher.Constraint("DistanceX", 24, 2, 24, 1, Q("344 mm")))
sketch5.addConstraint(Sketcher.Constraint("DistanceX", 28, 2, 28, 1, Q("346 mm")))
sketch5.addConstraint(Sketcher.Constraint("DistanceX", 4, 2, -1, 1, Q("698 mm")))
sketch5.addConstraint(Sketcher.Constraint("DistanceY", -1, 1, 4, 2, Q("49 mm")))
sketch5.addConstraint(Sketcher.Constraint("DistanceX", 8, 2, -1, 1, Q("348 mm")))
sketch5.addConstraint(Sketcher.Constraint("DistanceY", -1, 1, 12, 2, Q("399 mm")))
sketch5.addConstraint(Sketcher.Constraint("DistanceY", -1, 1, 48, 2, Q("1089 mm")))
sketch5.addConstraint(Sketcher.Constraint("DistanceY", -1, 1, 56, 2, Q("1099 mm")))
pad5 = doc.addObject("PartDesign::Pad", "Pad004")
body2.addObject(pad5)
pad5.Profile = sketch5
pad5.Length = 390
pad5.Reversed = True

doc.recompute()
